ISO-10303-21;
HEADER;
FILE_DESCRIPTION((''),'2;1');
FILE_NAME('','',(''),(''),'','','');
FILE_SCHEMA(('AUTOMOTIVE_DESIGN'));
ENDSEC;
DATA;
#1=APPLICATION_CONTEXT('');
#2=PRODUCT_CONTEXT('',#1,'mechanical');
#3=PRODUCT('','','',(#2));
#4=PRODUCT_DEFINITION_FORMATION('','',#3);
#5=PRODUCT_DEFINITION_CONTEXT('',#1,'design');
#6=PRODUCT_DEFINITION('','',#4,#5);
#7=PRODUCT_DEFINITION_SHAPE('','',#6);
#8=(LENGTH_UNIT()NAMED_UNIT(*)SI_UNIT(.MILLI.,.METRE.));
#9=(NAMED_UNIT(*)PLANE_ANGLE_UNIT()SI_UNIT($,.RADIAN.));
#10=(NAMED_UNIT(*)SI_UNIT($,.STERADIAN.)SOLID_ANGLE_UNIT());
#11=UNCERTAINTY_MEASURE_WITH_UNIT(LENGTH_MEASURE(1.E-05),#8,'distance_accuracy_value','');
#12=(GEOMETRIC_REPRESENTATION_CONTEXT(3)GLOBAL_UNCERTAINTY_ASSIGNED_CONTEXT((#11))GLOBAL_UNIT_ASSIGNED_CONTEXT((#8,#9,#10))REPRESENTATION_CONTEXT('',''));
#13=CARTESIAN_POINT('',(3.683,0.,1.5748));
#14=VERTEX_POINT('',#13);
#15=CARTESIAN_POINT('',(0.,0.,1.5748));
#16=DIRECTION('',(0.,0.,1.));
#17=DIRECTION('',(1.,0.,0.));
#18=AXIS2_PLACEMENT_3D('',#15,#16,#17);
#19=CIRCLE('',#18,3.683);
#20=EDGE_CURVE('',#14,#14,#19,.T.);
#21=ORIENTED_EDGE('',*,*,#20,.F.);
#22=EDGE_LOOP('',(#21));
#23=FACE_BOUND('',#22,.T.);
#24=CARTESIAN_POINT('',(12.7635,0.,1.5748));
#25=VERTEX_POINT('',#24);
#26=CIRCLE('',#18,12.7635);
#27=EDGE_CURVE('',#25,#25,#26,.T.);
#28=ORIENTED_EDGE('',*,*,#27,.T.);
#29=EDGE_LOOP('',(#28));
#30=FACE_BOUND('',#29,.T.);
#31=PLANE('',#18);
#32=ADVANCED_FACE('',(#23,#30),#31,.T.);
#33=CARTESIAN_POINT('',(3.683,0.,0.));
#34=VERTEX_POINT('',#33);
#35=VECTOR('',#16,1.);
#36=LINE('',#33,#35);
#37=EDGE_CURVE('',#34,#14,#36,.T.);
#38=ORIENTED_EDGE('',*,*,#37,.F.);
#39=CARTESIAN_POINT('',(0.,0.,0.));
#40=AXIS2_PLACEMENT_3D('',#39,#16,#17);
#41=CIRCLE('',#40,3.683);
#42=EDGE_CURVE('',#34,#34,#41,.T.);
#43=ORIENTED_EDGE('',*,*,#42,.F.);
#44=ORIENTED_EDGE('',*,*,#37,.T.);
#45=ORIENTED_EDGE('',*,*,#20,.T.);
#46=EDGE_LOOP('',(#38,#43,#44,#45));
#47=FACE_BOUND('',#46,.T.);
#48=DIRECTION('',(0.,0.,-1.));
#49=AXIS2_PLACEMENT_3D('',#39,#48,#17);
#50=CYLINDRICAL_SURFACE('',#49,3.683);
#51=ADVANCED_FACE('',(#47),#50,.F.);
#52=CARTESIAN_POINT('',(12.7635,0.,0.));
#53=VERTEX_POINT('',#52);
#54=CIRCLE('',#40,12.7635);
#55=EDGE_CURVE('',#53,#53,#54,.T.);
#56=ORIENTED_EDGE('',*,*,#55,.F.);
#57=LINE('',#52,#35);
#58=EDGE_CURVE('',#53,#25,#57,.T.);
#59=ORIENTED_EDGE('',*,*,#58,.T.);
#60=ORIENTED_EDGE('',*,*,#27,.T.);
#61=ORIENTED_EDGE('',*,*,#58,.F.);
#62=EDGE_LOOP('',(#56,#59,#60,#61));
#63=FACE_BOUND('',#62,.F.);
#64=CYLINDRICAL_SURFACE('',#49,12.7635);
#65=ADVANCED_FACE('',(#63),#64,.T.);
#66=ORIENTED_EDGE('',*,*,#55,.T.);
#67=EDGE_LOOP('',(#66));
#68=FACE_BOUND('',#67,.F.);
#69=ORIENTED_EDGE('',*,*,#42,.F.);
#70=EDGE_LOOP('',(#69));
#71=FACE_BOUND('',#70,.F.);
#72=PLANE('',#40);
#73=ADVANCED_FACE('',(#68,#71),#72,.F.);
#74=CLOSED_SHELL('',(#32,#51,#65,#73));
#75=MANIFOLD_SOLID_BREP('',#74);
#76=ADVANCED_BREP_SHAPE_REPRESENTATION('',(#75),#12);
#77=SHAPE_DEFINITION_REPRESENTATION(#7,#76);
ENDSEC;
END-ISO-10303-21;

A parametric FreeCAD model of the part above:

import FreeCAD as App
import Part
import Sketcher

V = App.Vector
Q = App.Units.Quantity

doc = App.newDocument("Part")
body = doc.addObject("PartDesign::Body", "Body")

# Sketch on XY plane
sketch1 = doc.addObject("Sketcher::SketchObject", "Sketch")
body.addObject(sketch1)
sketch1.AttachmentSupport = (doc.XY_Plane, [""])
sketch1.MapMode = "FlatFace"
sketch1.addGeometry([
    Part.Circle(V(0, 0, 0), V(0, 0, 1), 12.8),
    Part.Circle(V(0, 0, 0), V(0, 0, 1), 3.7),
], False)
sketch1.addConstraint([
    Sketcher.Constraint("Coincident", 0, 3, -1, 1),
    Sketcher.Constraint("Coincident", 1, 3, -1, 1),
    Sketcher.Constraint("Diameter", 1, Q("0.29 in")),
    Sketcher.Constraint("Diameter", 0, Q("1.005 in")),
])
pad1 = doc.addObject("PartDesign::Pad", "Pad")
body.addObject(pad1)
pad1.Profile = sketch1
pad1.Length = Q("0.062 in")

doc.recompute()
